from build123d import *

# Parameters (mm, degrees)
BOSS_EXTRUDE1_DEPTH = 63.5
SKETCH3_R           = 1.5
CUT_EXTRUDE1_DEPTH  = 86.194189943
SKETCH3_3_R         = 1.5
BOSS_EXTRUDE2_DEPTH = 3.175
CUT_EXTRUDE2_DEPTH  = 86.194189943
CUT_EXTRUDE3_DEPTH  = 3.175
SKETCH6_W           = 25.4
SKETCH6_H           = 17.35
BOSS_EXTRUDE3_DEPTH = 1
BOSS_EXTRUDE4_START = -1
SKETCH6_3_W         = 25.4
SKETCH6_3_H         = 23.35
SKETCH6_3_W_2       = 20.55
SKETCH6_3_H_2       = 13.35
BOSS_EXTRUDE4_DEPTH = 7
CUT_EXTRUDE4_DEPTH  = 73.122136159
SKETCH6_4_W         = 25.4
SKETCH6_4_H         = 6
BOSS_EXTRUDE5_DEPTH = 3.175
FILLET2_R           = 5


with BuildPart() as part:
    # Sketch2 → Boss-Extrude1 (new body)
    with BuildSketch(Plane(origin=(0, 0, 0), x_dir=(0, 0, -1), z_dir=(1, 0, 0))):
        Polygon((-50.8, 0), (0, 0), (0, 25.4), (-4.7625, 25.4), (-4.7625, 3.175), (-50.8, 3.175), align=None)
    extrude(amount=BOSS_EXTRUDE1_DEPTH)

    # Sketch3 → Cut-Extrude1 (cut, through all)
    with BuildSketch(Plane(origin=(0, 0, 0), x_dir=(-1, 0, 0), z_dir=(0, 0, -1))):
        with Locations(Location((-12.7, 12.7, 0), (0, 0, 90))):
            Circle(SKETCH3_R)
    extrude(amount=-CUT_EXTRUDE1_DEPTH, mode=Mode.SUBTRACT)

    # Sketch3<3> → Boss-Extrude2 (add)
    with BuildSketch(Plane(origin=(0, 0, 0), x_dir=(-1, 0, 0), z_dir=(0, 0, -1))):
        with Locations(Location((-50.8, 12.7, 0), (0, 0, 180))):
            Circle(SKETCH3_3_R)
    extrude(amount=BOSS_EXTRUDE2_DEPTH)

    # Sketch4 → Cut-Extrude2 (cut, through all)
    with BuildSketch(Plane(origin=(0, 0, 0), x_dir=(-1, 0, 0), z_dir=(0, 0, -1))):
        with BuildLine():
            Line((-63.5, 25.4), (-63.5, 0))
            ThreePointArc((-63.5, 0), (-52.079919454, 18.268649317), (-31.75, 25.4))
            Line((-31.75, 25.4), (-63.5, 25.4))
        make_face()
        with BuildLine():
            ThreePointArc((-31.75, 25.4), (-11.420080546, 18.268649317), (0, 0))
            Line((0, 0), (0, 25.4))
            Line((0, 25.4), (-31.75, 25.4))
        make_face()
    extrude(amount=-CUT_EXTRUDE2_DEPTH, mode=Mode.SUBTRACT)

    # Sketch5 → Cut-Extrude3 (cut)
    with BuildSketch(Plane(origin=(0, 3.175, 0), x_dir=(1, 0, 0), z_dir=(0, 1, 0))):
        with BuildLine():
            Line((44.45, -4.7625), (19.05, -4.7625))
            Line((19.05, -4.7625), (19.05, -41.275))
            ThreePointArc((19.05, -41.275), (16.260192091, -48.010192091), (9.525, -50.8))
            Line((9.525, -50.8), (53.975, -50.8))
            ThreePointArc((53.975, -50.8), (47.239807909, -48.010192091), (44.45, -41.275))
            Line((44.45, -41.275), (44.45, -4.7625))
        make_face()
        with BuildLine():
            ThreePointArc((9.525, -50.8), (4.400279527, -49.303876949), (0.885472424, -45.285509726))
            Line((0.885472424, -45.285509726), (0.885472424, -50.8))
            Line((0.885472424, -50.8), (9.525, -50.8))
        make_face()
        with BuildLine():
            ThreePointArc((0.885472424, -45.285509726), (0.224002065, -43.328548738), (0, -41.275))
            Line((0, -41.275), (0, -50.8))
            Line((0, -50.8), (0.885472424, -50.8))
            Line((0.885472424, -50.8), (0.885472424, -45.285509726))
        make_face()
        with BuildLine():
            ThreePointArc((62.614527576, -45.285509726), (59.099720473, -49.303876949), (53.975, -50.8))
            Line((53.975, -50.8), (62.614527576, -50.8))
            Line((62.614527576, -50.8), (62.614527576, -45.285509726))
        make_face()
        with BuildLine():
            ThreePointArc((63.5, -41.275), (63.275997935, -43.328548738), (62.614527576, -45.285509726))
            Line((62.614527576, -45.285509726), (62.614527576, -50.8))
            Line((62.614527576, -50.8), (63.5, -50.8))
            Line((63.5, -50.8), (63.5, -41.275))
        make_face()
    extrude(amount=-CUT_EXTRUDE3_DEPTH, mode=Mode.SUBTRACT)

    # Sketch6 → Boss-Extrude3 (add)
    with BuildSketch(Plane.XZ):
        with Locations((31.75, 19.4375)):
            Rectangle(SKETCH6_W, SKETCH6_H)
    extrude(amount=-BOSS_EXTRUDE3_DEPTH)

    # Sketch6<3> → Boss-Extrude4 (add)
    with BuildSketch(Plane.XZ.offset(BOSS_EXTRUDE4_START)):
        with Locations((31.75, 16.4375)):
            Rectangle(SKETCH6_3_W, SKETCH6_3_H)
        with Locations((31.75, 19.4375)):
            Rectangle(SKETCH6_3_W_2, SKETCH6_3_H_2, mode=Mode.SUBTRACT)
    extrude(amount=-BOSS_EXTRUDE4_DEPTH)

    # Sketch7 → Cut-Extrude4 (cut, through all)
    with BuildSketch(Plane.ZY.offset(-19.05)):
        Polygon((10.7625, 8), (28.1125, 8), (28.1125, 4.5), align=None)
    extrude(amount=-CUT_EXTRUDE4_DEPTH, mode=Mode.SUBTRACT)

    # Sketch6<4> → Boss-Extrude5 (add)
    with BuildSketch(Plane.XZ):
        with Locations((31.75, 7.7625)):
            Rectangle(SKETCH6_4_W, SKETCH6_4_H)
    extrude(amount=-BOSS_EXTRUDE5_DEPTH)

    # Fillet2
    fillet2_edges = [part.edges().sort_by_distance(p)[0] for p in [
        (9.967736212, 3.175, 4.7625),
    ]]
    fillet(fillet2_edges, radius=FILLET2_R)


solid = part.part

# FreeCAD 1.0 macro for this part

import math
import FreeCAD as App
import Part
import Sketcher
from FreeCAD import Vector
Q = App.Units.Quantity


def edges_at(feature, points):
    """Names of the edges that pass closest to the given points."""
    edges = feature.Shape.Edges
    near = lambda p: min(range(len(edges)), key=lambda i: edges[i].distToShape(Part.Vertex(*p))[0])
    return sorted({f"Edge{near(p) + 1}" for p in points})


def add_polygon(sketch, points):
    """Adds a closed chain of lines whose ends are joined by coincident constraints."""
    first, n = sketch.GeometryCount, len(points)
    for a, b in zip(points, points[1:] + points[:1]):
        sketch.addGeometry(Part.LineSegment(App.Vector(*a, 0), App.Vector(*b, 0)), False)
    for i in range(n):
        sketch.addConstraint(Sketcher.Constraint("Coincident", first + i, 2, first + (i + 1) % n, 1))

doc = App.newDocument("Part")
body = doc.addObject("PartDesign::Body", "Body")

sketch1 = doc.addObject("Sketcher::SketchObject", "Sketch")
body.addObject(sketch1)
sketch1.AttachmentSupport = (doc.YZ_Plane, [""])
sketch1.MapMode = "FlatFace"
add_polygon(sketch1, [(0, 50.8), (0, 0), (25.4, 0), (25.4, 4.8), (3.2, 4.8), (3.2, 50.8)])
sketch1.addConstraint(Sketcher.Constraint("Vertical", 0))
sketch1.addConstraint(Sketcher.Constraint("Horizontal", 1))
sketch1.addConstraint(Sketcher.Constraint("Vertical", 2))
sketch1.addConstraint(Sketcher.Constraint("Horizontal", 3))
sketch1.addConstraint(Sketcher.Constraint("Vertical", 4))
sketch1.addConstraint(Sketcher.Constraint("Horizontal", 5))
sketch1.addConstraint(Sketcher.Constraint("Coincident", 0, 2, -1, 1))
sketch1.addConstraint(Sketcher.Constraint("DistanceX", 1, 1, 1, 2, Q("1 in")))
sketch1.addConstraint(Sketcher.Constraint("DistanceY", 0, 2, 0, 1, Q("2 in")))
sketch1.addConstraint(Sketcher.Constraint("DistanceX", 3, 2, 3, 1, Q("0.875 in")))
sketch1.addConstraint(Sketcher.Constraint("DistanceY", 2, 1, 2, 2, Q("0.1875 in")))
pad1 = doc.addObject("PartDesign::Pad", "Pad")
body.addObject(pad1)
pad1.Profile = sketch1
pad1.Length = Q("2.5 in")

sketch2 = doc.addObject("Sketcher::SketchObject", "Sketch001")
body.addObject(sketch2)
sketch2.AttachmentSupport = (doc.XY_Plane, [""])
sketch2.MapMode = "FlatFace"
sketch2.addGeometry(Part.Circle(Vector(12.7, 12.7, 0), Vector(0, 0, 1), 1.5), False)
sketch2.addConstraint(Sketcher.Constraint("DistanceX", -1, 1, 0, 3, Q("0.5 in")))
sketch2.addConstraint(Sketcher.Constraint("DistanceY", -1, 1, 0, 3, Q("0.5 in")))
sketch2.addConstraint(Sketcher.Constraint("Diameter", 0, Q("3 mm")))
pocket1 = doc.addObject("PartDesign::Pocket", "Pocket")
body.addObject(pocket1)
pocket1.Profile = sketch2
pocket1.Type = "ThroughAll"
pocket1.Reversed = True

sketch3 = doc.addObject("Sketcher::SketchObject", "Sketch002")
body.addObject(sketch3)
sketch3.AttachmentSupport = (doc.XY_Plane, [""])
sketch3.MapMode = "FlatFace"
sketch3.addGeometry(Part.Circle(Vector(50.8, 12.7, 0), Vector(0, 0, 1), 1.5), False)
sketch3.addConstraint(Sketcher.Constraint("DistanceX", -1, 1, 0, 3, Q("2 in")))
sketch3.addConstraint(Sketcher.Constraint("DistanceY", -1, 1, 0, 3, Q("0.5 in")))
sketch3.addConstraint(Sketcher.Constraint("Diameter", 0, Q("3 mm")))
pad2 = doc.addObject("PartDesign::Pad", "Pad001")
body.addObject(pad2)
pad2.Profile = sketch3
pad2.Length = Q("0.125 in")
pad2.Reversed = True

sketch4 = doc.addObject("Sketcher::SketchObject", "Sketch003")
body.addObject(sketch4)
sketch4.AttachmentSupport = (doc.XY_Plane, [""])
sketch4.MapMode = "FlatFace"
sketch4.addGeometry(Part.LineSegment(Vector(64, 25, 0), Vector(64, 0, 0)), False)
sketch4.addGeometry(Part.ArcOfCircle(Part.Circle(Vector(32, -7, 0), Vector(0, 0, 1), 33), math.radians(13), math.radians(90)), False)
sketch4.addGeometry(Part.LineSegment(Vector(32, 25, 0), Vector(64, 25, 0)), False)
sketch4.addGeometry(Part.ArcOfCircle(Part.Circle(Vector(32, -7, 0), Vector(0, 0, 1), 33), math.radians(90), math.radians(167)), False)
sketch4.addGeometry(Part.LineSegment(Vector(0, 0, 0), Vector(0, 25, 0)), False)
sketch4.addGeometry(Part.LineSegment(Vector(0, 25, 0), Vector(32, 25, 0)), False)
sketch4.addConstraint(Sketcher.Constraint("Coincident", 0, 2, 1, 1))
sketch4.addConstraint(Sketcher.Constraint("Tangent", 1, 2, 2, 1))
sketch4.addConstraint(Sketcher.Constraint("Coincident", 2, 2, 0, 1))
sketch4.addConstraint(Sketcher.Constraint("Coincident", 3, 2, 4, 1))
sketch4.addConstraint(Sketcher.Constraint("Coincident", 4, 2, 5, 1))
sketch4.addConstraint(Sketcher.Constraint("Tangent", 5, 2, 3, 1))
sketch4.addConstraint(Sketcher.Constraint("Vertical", 0))
sketch4.addConstraint(Sketcher.Constraint("Horizontal", 2))
sketch4.addConstraint(Sketcher.Constraint("Vertical", 4))
sketch4.addConstraint(Sketcher.Constraint("Horizontal", 5))
sketch4.addConstraint(Sketcher.Constraint("Coincident", 3, 2, -1, 1))
sketch4.addConstraint(Sketcher.Constraint("Coincident", 3, 3, 1, 3))
sketch4.addConstraint(Sketcher.Constraint("Equal", 1, 3))
sketch4.addConstraint(Sketcher.Constraint("PointOnObject", 0, 2, -1))
sketch4.addConstraint(Sketcher.Constraint("DistanceY", 0, 2, 0, 1, Q("1 in")))
sketch4.addConstraint(Sketcher.Constraint("Radius", 1, Q("1.28125 in")))
pocket2 = doc.addObject("PartDesign::Pocket", "Pocket001")
body.addObject(pocket2)
pocket2.Profile = sketch4
pocket2.Type = "ThroughAll"
pocket2.Reversed = True

sketch5 = doc.addObject("Sketcher::SketchObject", "Sketch004")
body.addObject(sketch5)
sketch5.AttachmentSupport = (doc.XZ_Plane, [""])
sketch5.MapMode = "FlatFace"
sketch5.AttachmentOffset = App.Placement(Vector(0, 0, -0.125 * 25.4), App.Rotation())
sketch5.addGeometry(Part.LineSegment(Vector(44.5, 4.8, 0), Vector(19.1, 4.8, 0)), False)
sketch5.addGeometry(Part.LineSegment(Vector(19.1, 4.8, 0), Vector(19.1, 41.3, 0)), False)
sketch5.addGeometry(Part.ArcOfCircle(Part.Circle(Vector(9.5, 41.3, 0), Vector(0, 0, 1), 9.5), math.radians(0), math.radians(90)), False)
sketch5.addGeometry(Part.LineSegment(Vector(9.5, 50.8, 0), Vector(54, 50.8, 0)), False)
sketch5.addGeometry(Part.ArcOfCircle(Part.Circle(Vector(54, 41.3, 0), Vector(0, 0, 1), 9.5), math.radians(90), math.radians(180)), False)
sketch5.addGeometry(Part.LineSegment(Vector(44.5, 41.3, 0), Vector(44.5, 4.8, 0)), False)
sketch5.addGeometry(Part.ArcOfCircle(Part.Circle(Vector(9.5, 41.3, 0), Vector(0, 0, 1), 9.5), math.radians(90), math.radians(155)), False)
sketch5.addGeometry(Part.ArcOfCircle(Part.Circle(Vector(9.5, 41.3, 0), Vector(0, 0, 1), 9.5), math.radians(155), math.radians(180)), False)
sketch5.addGeometry(Part.LineSegment(Vector(0, 41.3, 0), Vector(0, 50.8, 0)), False)
sketch5.addGeometry(Part.LineSegment(Vector(0, 50.8, 0), Vector(9.5, 50.8, 0)), False)
sketch5.addGeometry(Part.ArcOfCircle(Part.Circle(Vector(54, 41.3, 0), Vector(0, 0, 1), 9.5), math.radians(25), math.radians(90)), False)
sketch5.addGeometry(Part.LineSegment(Vector(54, 50.8, 0), Vector(63.5, 50.8, 0)), False)
sketch5.addGeometry(Part.LineSegment(Vector(63.5, 50.8, 0), Vector(63.5, 41.3, 0)), False)
sketch5.addGeometry(Part.ArcOfCircle(Part.Circle(Vector(54, 41.3, 0), Vector(0, 0, 1), 9.5), math.radians(0), math.radians(25)), False)
sketch5.addConstraint(Sketcher.Constraint("Coincident", 0, 2, 1, 1))
sketch5.addConstraint(Sketcher.Constraint("Tangent", 1, 2, 2, 1))
sketch5.addConstraint(Sketcher.Constraint("Tangent", 2, 2, 3, 1))
sketch5.addConstraint(Sketcher.Constraint("Tangent", 3, 2, 4, 1))
sketch5.addConstraint(Sketcher.Constraint("Tangent", 4, 2, 5, 1))
sketch5.addConstraint(Sketcher.Constraint("Coincident", 5, 2, 0, 1))
sketch5.addConstraint(Sketcher.Constraint("Tangent", 6, 2, 7, 1))
sketch5.addConstraint(Sketcher.Constraint("Tangent", 7, 2, 8, 1))
sketch5.addConstraint(Sketcher.Constraint("Coincident", 8, 2, 9, 1))
sketch5.addConstraint(Sketcher.Constraint("Tangent", 9, 2, 6, 1))
sketch5.addConstraint(Sketcher.Constraint("Tangent", 10, 2, 11, 1))
sketch5.addConstraint(Sketcher.Constraint("Coincident", 11, 2, 12, 1))
sketch5.addConstraint(Sketcher.Constraint("Tangent", 12, 2, 13, 1))
sketch5.addConstraint(Sketcher.Constraint("Tangent", 13, 2, 10, 1))
sketch5.addConstraint(Sketcher.Constraint("Horizontal", 0))
sketch5.addConstraint(Sketcher.Constraint("Vertical", 1))
sketch5.addConstraint(Sketcher.Constraint("Horizontal", 3))
sketch5.addConstraint(Sketcher.Constraint("Vertical", 5))
sketch5.addConstraint(Sketcher.Constraint("Vertical", 8))
sketch5.addConstraint(Sketcher.Constraint("Horizontal", 9))
sketch5.addConstraint(Sketcher.Constraint("Horizontal", 11))
sketch5.addConstraint(Sketcher.Constraint("Vertical", 12))
sketch5.addConstraint(Sketcher.Constraint("Coincident", 6, 3, 2, 3))
sketch5.addConstraint(Sketcher.Constraint("Coincident", 10, 3, 4, 3))
sketch5.addConstraint(Sketcher.Constraint("Equal", 2, 4))
sketch5.addConstraint(Sketcher.Constraint("Equal", 4, 6))
sketch5.addConstraint(Sketcher.Constraint("Equal", 6, 7))
sketch5.addConstraint(Sketcher.Constraint("Equal", 7, 10))
sketch5.addConstraint(Sketcher.Constraint("Equal", 10, 13))
sketch5.addConstraint(Sketcher.Constraint("PointOnObject", 7, 2, -2))
sketch5.addConstraint(Sketcher.Constraint("Horizontal", 6, 2, 13, 2))
sketch5.addConstraint(Sketcher.Constraint("DistanceX", 0, 2, 0, 1, Q("1 in")))
sketch5.addConstraint(Sketcher.Constraint("DistanceY", -1, 1, 2, 2, Q("2 in")))
sketch5.addConstraint(Sketcher.Constraint("Radius", 2, Q("0.375 in")))
sketch5.addConstraint(Sketcher.Constraint("DistanceY", 1, 1, 1, 2, Q("1.4375 in")))
sketch5.addConstraint(Sketcher.Constraint("DistanceY", -1, 1, 6, 2, Q("45.28551 mm")))
pocket3 = doc.addObject("PartDesign::Pocket", "Pocket002")
body.addObject(pocket3)
pocket3.Profile = sketch5
pocket3.Length = Q("0.125 in")
pocket3.Reversed = True

sketch6 = doc.addObject("Sketcher::SketchObject", "Sketch005")
body.addObject(sketch6)
sketch6.AttachmentSupport = (doc.XZ_Plane, [""])
sketch6.MapMode = "FlatFace"
add_polygon(sketch6, [(19, 28), (19, 11), (44, 11), (44, 28)])
sketch6.addConstraint(Sketcher.Constraint("Vertical", 0))
sketch6.addConstraint(Sketcher.Constraint("Horizontal", 1))
sketch6.addConstraint(Sketcher.Constraint("Vertical", 2))
sketch6.addConstraint(Sketcher.Constraint("Horizontal", 3))
sketch6.addConstraint(Sketcher.Constraint("DistanceX", 1, 1, 1, 2, Q("1 in")))
sketch6.addConstraint(Sketcher.Constraint("DistanceX", -1, 1, 0, 2, Q("0.75 in")))
sketch6.addConstraint(Sketcher.Constraint("DistanceY", 0, 2, 0, 1, Q("17.35 mm")))
sketch6.addConstraint(Sketcher.Constraint("DistanceY", -1, 1, 0, 2, Q("10.7625 mm")))
pad3 = doc.addObject("PartDesign::Pad", "Pad002")
body.addObject(pad3)
pad3.Profile = sketch6
pad3.Length = 1
pad3.Reversed = True

sketch7 = doc.addObject("Sketcher::SketchObject", "Sketch006")
body.addObject(sketch7)
sketch7.AttachmentSupport = (doc.XZ_Plane, [""])
sketch7.MapMode = "FlatFace"
sketch7.AttachmentOffset = App.Placement(Vector(0, 0, -1), App.Rotation())
add_polygon(sketch7, [(19, 28), (19, 5), (44, 5), (44, 28)])
add_polygon(sketch7, [(42, 13), (21, 13), (21, 26), (42, 26)])
sketch7.addConstraint(Sketcher.Constraint("Vertical", 0))
sketch7.addConstraint(Sketcher.Constraint("Horizontal", 1))
sketch7.addConstraint(Sketcher.Constraint("Vertical", 2))
sketch7.addConstraint(Sketcher.Constraint("Horizontal", 3))
sketch7.addConstraint(Sketcher.Constraint("Horizontal", 4))
sketch7.addConstraint(Sketcher.Constraint("Vertical", 5))
sketch7.addConstraint(Sketcher.Constraint("Horizontal", 6))
sketch7.addConstraint(Sketcher.Constraint("Vertical", 7))
sketch7.addConstraint(Sketcher.Constraint("DistanceX", 1, 1, 1, 2, Q("1 in")))
sketch7.addConstraint(Sketcher.Constraint("DistanceX", -1, 1, 0, 2, Q("0.75 in")))
sketch7.addConstraint(Sketcher.Constraint("DistanceY", -1, 1, 0, 2, Q("0.1875 in")))
sketch7.addConstraint(Sketcher.Constraint("DistanceX", 4, 2, 4, 1, Q("20.55 mm")))
sketch7.addConstraint(Sketcher.Constraint("DistanceY", 0, 2, 0, 1, Q("23.35 mm")))
sketch7.addConstraint(Sketcher.Constraint("DistanceY", 5, 1, 5, 2, Q("13.35 mm")))
sketch7.addConstraint(Sketcher.Constraint("DistanceX", -1, 1, 4, 2, Q("21.475 mm")))
sketch7.addConstraint(Sketcher.Constraint("DistanceY", -1, 1, 4, 2, Q("12.7625 mm")))
pad4 = doc.addObject("PartDesign::Pad", "Pad003")
body.addObject(pad4)
pad4.Profile = sketch7
pad4.Length = 7
pad4.Reversed = True

sketch8 = doc.addObject("Sketcher::SketchObject", "Sketch007")
body.addObject(sketch8)
sketch8.AttachmentSupport = (doc.YZ_Plane, [""])
sketch8.MapMode = "FlatFace"
sketch8.AttachmentOffset = App.Placement(Vector(0, 0, 0.75 * 25.4), App.Rotation())
add_polygon(sketch8, [(8, 28.1), (8, 10.8), (4.5, 28.1)])
sketch8.addConstraint(Sketcher.Constraint("Vertical", 0))
sketch8.addConstraint(Sketcher.Constraint("Horizontal", 2))
sketch8.addConstraint(Sketcher.Constraint("DistanceX", 2, 1, 2, 2, Q("3.5 mm")))
sketch8.addConstraint(Sketcher.Constraint("DistanceY", 0, 2, 0, 1, Q("17.35 mm")))
sketch8.addConstraint(Sketcher.Constraint("DistanceX", -1, 1, 0, 2, Q("8 mm")))
sketch8.addConstraint(Sketcher.Constraint("DistanceY", -1, 1, 0, 2, Q("10.7625 mm")))
pocket4 = doc.addObject("PartDesign::Pocket", "Pocket003")
body.addObject(pocket4)
pocket4.Profile = sketch8
pocket4.Type = "ThroughAll"
pocket4.Reversed = True

sketch9 = doc.addObject("Sketcher::SketchObject", "Sketch008")
body.addObject(sketch9)
sketch9.AttachmentSupport = (doc.XZ_Plane, [""])
sketch9.MapMode = "FlatFace"
add_polygon(sketch9, [(19, 11), (19, 5), (44, 5), (44, 11)])
sketch9.addConstraint(Sketcher.Constraint("Vertical", 0))
sketch9.addConstraint(Sketcher.Constraint("Horizontal", 1))
sketch9.addConstraint(Sketcher.Constraint("Vertical", 2))
sketch9.addConstraint(Sketcher.Constraint("Horizontal", 3))
sketch9.addConstraint(Sketcher.Constraint("DistanceX", 1, 1, 1, 2, Q("1 in")))
sketch9.addConstraint(Sketcher.Constraint("DistanceX", -1, 1, 0, 2, Q("0.75 in")))
sketch9.addConstraint(Sketcher.Constraint("DistanceY", -1, 1, 0, 2, Q("0.1875 in")))
sketch9.addConstraint(Sketcher.Constraint("DistanceY", 0, 2, 0, 1, Q("6 mm")))
pad5 = doc.addObject("PartDesign::Pad", "Pad004")
body.addObject(pad5)
pad5.Profile = sketch9
pad5.Length = Q("0.125 in")
pad5.Reversed = True
doc.recompute()

fillet = doc.addObject("PartDesign::Fillet", "Fillet")
body.addObject(fillet)
fillet.Base = (pad5, edges_at(pad5, [(9.968, 3.175, 4.763)]))
fillet.Radius = 5

doc.recompute()
